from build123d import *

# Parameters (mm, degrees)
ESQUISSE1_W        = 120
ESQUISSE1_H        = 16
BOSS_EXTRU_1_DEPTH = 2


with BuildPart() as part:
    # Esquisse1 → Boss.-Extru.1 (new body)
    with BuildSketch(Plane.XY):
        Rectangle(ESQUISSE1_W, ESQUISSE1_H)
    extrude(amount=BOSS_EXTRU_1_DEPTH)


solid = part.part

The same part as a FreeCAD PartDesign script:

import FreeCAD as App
import Part
import Sketcher


def add_polygon(sketch, points):
    """Adds a closed chain of lines whose ends are joined by coincident constraints."""
    first, n = sketch.GeometryCount, len(points)
    for a, b in zip(points, points[1:] + points[:1]):
        sketch.addGeometry(Part.LineSegment(App.Vector(*a, 0), App.Vector(*b, 0)), False)
    for i in range(n):
        sketch.addConstraint(Sketcher.Constraint("Coincident", first + i, 2, first + (i + 1) % n, 1))

doc = App.newDocument("Part")
body = doc.addObject("PartDesign::Body", "Body")

# Sketch on XY plane
sketch1 = body.newObject("Sketcher::SketchObject", "Sketch")
sketch1.AttachmentSupport = (doc.getObject("XY_Plane"), [""])
sketch1.MapMode = "FlatFace"
add_polygon(sketch1, [(-60, 8), (-60, -8), (60, -8), (60, 8)])  # lines 0-3
sketch1.addConstraint(Sketcher.Constraint("Vertical", 0))
sketch1.addConstraint(Sketcher.Constraint("Horizontal", 1))
sketch1.addConstraint(Sketcher.Constraint("Vertical", 2))
sketch1.addConstraint(Sketcher.Constraint("Horizontal", 3))
sketch1.addConstraint(Sketcher.Constraint("Symmetric", 0, 2, 2, 2, -1, 1))
sketch1.addConstraint(Sketcher.Constraint("DistanceX", 1, 1, 1, 2, 120.0))
sketch1.addConstraint(Sketcher.Constraint("DistanceY", 0, 2, 0, 1, 16.0))
pad1 = body.newObject("PartDesign::Pad", "Pad")
pad1.Profile = sketch1
pad1.Length = 2

doc.recompute()
